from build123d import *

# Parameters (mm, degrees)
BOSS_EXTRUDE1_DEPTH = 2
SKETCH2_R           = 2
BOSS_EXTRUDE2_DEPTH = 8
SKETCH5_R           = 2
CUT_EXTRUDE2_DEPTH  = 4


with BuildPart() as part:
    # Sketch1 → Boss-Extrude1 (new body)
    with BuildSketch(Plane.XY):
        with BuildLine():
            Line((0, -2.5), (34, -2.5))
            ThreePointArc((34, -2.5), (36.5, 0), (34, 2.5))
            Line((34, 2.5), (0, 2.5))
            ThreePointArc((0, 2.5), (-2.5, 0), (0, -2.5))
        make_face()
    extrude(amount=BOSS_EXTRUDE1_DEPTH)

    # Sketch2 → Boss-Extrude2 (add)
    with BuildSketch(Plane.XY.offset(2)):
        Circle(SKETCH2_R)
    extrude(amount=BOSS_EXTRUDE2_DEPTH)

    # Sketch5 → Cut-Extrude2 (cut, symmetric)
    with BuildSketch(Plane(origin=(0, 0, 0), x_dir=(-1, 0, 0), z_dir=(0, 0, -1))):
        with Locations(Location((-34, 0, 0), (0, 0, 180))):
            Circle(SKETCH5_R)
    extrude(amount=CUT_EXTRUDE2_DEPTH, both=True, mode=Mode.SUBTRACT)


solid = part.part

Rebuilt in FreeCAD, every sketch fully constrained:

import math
import FreeCAD as App
import Part
import Sketcher

doc = App.newDocument("Part")
params = doc.addObject("Spreadsheet::Sheet", "Params")
for row, (alias, value) in enumerate([
    ("sketch1_radius", "2.5 mm"),
    ("sketch1_width", "34 mm"),
    ("pad1_length", "2 mm"),
    ("sketch2_diameter", "4 mm"),
    ("pad2_length", "8 mm"),
    ("sketch3_diameter", "4 mm"),
    ("pocket1_length", "8 mm"),
], start=1):
    params.set(f"A{row}", alias)
    params.set(f"B{row}", "=" + value)
    params.setAlias(f"B{row}", alias)

body = doc.addObject("PartDesign::Body", "Body")

# Sketch on XY plane
sketch1 = body.newObject("Sketcher::SketchObject", "Sketch")
sketch1.AttachmentSupport = (doc.getObject("XY_Plane"), [""])
sketch1.MapMode = "FlatFace"
sketch1.addGeometry(Part.LineSegment(App.Vector(0, -2.5, 0), App.Vector(34, -2.5, 0)), False)
sketch1.addGeometry(Part.ArcOfCircle(Part.Circle(App.Vector(34, 0, 0), App.Vector(0, 0, 1), 2.5), math.radians(-90), math.radians(90)), False)
sketch1.addGeometry(Part.LineSegment(App.Vector(34, 2.5, 0), App.Vector(0, 2.5, 0)), False)
sketch1.addGeometry(Part.ArcOfCircle(Part.Circle(App.Vector(0, 0, 0), App.Vector(0, 0, 1), 2.5), math.radians(90), math.radians(270)), False)
sketch1.addConstraint(Sketcher.Constraint("Tangent", 0, 2, 1, 1))
sketch1.addConstraint(Sketcher.Constraint("Tangent", 1, 2, 2, 1))
sketch1.addConstraint(Sketcher.Constraint("Tangent", 2, 2, 3, 1))
sketch1.addConstraint(Sketcher.Constraint("Tangent", 3, 2, 0, 1))
sketch1.addConstraint(Sketcher.Constraint("Horizontal", 0))
sketch1.addConstraint(Sketcher.Constraint("Horizontal", 2))
sketch1.addConstraint(Sketcher.Constraint("Coincident", 3, 3, -1, 1))
sketch1.addConstraint(Sketcher.Constraint("Radius", 1, 2.5))
sketch1.addConstraint(Sketcher.Constraint("DistanceX", 0, 1, 0, 2, 34.0))
sketch1.setExpression("Constraints[7]", "Params.sketch1_radius")
sketch1.setExpression("Constraints[8]", "Params.sketch1_width")
pad1 = body.newObject("PartDesign::Pad", "Pad")
pad1.Profile = sketch1
pad1.setExpression("Length", "Params.pad1_length")

# Sketch on XY plane
sketch2 = body.newObject("Sketcher::SketchObject", "Sketch001")
sketch2.AttachmentSupport = (doc.getObject("XY_Plane"), [""])
sketch2.MapMode = "FlatFace"
sketch2.AttachmentOffset = App.Placement(App.Vector(0, 0, 2), App.Rotation())
sketch2.addGeometry(Part.Circle(App.Vector(0, 0, 0), App.Vector(0, 0, 1), 2), False)
sketch2.addConstraint(Sketcher.Constraint("Coincident", 0, 3, -1, 1))
sketch2.addConstraint(Sketcher.Constraint("Diameter", 0, 4.0))
sketch2.setExpression("Constraints[1]", "Params.sketch2_diameter")
pad2 = body.newObject("PartDesign::Pad", "Pad001")
pad2.Profile = sketch2
pad2.setExpression("Length", "Params.pad2_length")

# Sketch on XY plane
sketch3 = body.newObject("Sketcher::SketchObject", "Sketch002")
sketch3.AttachmentSupport = (doc.getObject("XY_Plane"), [""])
sketch3.MapMode = "FlatFace"
sketch3.addGeometry(Part.Circle(App.Vector(34, 0, 0), App.Vector(0, 0, 1), 2), False)
sketch3.addConstraint(Sketcher.Constraint("PointOnObject", 0, 3, -1))
sketch3.addConstraint(Sketcher.Constraint("Diameter", 0, 4.0))
sketch3.addConstraint(Sketcher.Constraint("DistanceX", -1, 1, 0, 3, 34.0))
sketch3.setExpression("Constraints[1]", "Params.sketch3_diameter")
pocket1 = body.newObject("PartDesign::Pocket", "Pocket")
pocket1.Profile = sketch3
pocket1.setExpression("Length", "Params.pocket1_length")
pocket1.Midplane = True

doc.recompute()
